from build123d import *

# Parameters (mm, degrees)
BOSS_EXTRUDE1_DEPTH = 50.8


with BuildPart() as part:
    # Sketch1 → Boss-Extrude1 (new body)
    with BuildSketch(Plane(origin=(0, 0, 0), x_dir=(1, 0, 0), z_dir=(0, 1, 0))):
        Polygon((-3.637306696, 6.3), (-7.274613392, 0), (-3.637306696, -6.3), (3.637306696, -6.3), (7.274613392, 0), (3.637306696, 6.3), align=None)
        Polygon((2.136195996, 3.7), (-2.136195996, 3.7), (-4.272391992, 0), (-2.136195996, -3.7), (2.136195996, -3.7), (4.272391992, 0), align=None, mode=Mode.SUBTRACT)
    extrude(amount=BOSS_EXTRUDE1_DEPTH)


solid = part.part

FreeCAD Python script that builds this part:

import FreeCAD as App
import Part
import Sketcher

V = App.Vector
Q = App.Units.Quantity

doc = App.newDocument("Part")
params = doc.addObject("Spreadsheet::Sheet", "Params")
for row, (alias, value) in enumerate([
    ("pad1_length", "2 in"),
], start=1):
    params.set(f"A{row}", alias)
    params.set(f"B{row}", "=" + value)
    params.setAlias(f"B{row}", alias)

body = doc.addObject("PartDesign::Body", "Body")

sketch1 = body.newObject("Sketcher::SketchObject", "Sketch")
sketch1.AttachmentSupport = (doc.getObject("XZ_Plane"), [""])
sketch1.MapMode = "FlatFace"
sketch1.addGeometry(Part.LineSegment(V(-3.6, -6.3, 0), V(-7.3, 0, 0)), False)
sketch1.addGeometry(Part.LineSegment(V(-7.3, 0, 0), V(-3.6, 6.3, 0)), False)
sketch1.addGeometry(Part.LineSegment(V(-3.6, 6.3, 0), V(3.6, 6.3, 0)), False)
sketch1.addGeometry(Part.LineSegment(V(3.6, 6.3, 0), V(7.3, 0, 0)), False)
sketch1.addGeometry(Part.LineSegment(V(7.3, 0, 0), V(3.6, -6.3, 0)), False)
sketch1.addGeometry(Part.LineSegment(V(3.6, -6.3, 0), V(-3.6, -6.3, 0)), False)
sketch1.addGeometry(Part.LineSegment(V(-2.1, -3.7, 0), V(2.1, -3.7, 0)), False)
sketch1.addGeometry(Part.LineSegment(V(2.1, -3.7, 0), V(4.3, 0, 0)), False)
sketch1.addGeometry(Part.LineSegment(V(4.3, 0, 0), V(2.1, 3.7, 0)), False)
sketch1.addGeometry(Part.LineSegment(V(2.1, 3.7, 0), V(-2.1, 3.7, 0)), False)
sketch1.addGeometry(Part.LineSegment(V(-2.1, 3.7, 0), V(-4.3, 0, 0)), False)
sketch1.addGeometry(Part.LineSegment(V(-4.3, 0, 0), V(-2.1, -3.7, 0)), False)
sketch1.addConstraint(Sketcher.Constraint("Coincident", 0, 2, 1, 1))
sketch1.addConstraint(Sketcher.Constraint("Coincident", 1, 2, 2, 1))
sketch1.addConstraint(Sketcher.Constraint("Coincident", 2, 2, 3, 1))
sketch1.addConstraint(Sketcher.Constraint("Coincident", 3, 2, 4, 1))
sketch1.addConstraint(Sketcher.Constraint("Coincident", 4, 2, 5, 1))
sketch1.addConstraint(Sketcher.Constraint("Coincident", 5, 2, 0, 1))
sketch1.addConstraint(Sketcher.Constraint("Coincident", 6, 2, 7, 1))
sketch1.addConstraint(Sketcher.Constraint("Coincident", 7, 2, 8, 1))
sketch1.addConstraint(Sketcher.Constraint("Coincident", 8, 2, 9, 1))
sketch1.addConstraint(Sketcher.Constraint("Coincident", 9, 2, 10, 1))
sketch1.addConstraint(Sketcher.Constraint("Coincident", 10, 2, 11, 1))
sketch1.addConstraint(Sketcher.Constraint("Coincident", 11, 2, 6, 1))
sketch1.addConstraint(Sketcher.Constraint("Horizontal", 2))
sketch1.addConstraint(Sketcher.Constraint("Horizontal", 5))
sketch1.addConstraint(Sketcher.Constraint("Horizontal", 6))
sketch1.addConstraint(Sketcher.Constraint("Horizontal", 9))
sketch1.addConstraint(Sketcher.Constraint("Symmetric", 0, 2, 3, 2, -1, 1))
sketch1.addConstraint(Sketcher.Constraint("Symmetric", 1, 2, 4, 2, -1, 1))
sketch1.addConstraint(Sketcher.Constraint("Symmetric", 6, 2, 9, 2, -1, 1))
sketch1.addConstraint(Sketcher.Constraint("Symmetric", 7, 2, 10, 2, -1, 1))
sketch1.addConstraint(Sketcher.Constraint("PointOnObject", 0, 2, -1))
sketch1.addConstraint(Sketcher.Constraint("PointOnObject", 7, 2, -1))
sketch1.addConstraint(Sketcher.Constraint("Parallel", 0, 3))
sketch1.addConstraint(Sketcher.Constraint("Parallel", 4, 7))
sketch1.addConstraint(Sketcher.Constraint("Parallel", 3, 8))
sketch1.addConstraint(Sketcher.Constraint("Parallel", 8, 11))
sketch1.addConstraint(Sketcher.Constraint("Vertical", 2, 2, 4, 2))
sketch1.addConstraint(Sketcher.Constraint("Angle", 0, Q("120 deg")))
sketch1.addConstraint(Sketcher.Constraint("DistanceX", 6, 2, 3, 2, Q("0.2022999 in")))
sketch1.addConstraint(Sketcher.Constraint("DistanceX", 6, 1, 6, 2, 4.272392))
sketch1.addConstraint(Sketcher.Constraint("DistanceY", -1, 1, 1, 2, 6.3))
sketch1.addConstraint(Sketcher.Constraint("DistanceY", 6, 2, -1, 1, 3.7))
pad1 = body.newObject("PartDesign::Pad", "Pad")
pad1.Profile = sketch1
pad1.setExpression("Length", "Params.pad1_length")
pad1.Reversed = True

doc.recompute()
